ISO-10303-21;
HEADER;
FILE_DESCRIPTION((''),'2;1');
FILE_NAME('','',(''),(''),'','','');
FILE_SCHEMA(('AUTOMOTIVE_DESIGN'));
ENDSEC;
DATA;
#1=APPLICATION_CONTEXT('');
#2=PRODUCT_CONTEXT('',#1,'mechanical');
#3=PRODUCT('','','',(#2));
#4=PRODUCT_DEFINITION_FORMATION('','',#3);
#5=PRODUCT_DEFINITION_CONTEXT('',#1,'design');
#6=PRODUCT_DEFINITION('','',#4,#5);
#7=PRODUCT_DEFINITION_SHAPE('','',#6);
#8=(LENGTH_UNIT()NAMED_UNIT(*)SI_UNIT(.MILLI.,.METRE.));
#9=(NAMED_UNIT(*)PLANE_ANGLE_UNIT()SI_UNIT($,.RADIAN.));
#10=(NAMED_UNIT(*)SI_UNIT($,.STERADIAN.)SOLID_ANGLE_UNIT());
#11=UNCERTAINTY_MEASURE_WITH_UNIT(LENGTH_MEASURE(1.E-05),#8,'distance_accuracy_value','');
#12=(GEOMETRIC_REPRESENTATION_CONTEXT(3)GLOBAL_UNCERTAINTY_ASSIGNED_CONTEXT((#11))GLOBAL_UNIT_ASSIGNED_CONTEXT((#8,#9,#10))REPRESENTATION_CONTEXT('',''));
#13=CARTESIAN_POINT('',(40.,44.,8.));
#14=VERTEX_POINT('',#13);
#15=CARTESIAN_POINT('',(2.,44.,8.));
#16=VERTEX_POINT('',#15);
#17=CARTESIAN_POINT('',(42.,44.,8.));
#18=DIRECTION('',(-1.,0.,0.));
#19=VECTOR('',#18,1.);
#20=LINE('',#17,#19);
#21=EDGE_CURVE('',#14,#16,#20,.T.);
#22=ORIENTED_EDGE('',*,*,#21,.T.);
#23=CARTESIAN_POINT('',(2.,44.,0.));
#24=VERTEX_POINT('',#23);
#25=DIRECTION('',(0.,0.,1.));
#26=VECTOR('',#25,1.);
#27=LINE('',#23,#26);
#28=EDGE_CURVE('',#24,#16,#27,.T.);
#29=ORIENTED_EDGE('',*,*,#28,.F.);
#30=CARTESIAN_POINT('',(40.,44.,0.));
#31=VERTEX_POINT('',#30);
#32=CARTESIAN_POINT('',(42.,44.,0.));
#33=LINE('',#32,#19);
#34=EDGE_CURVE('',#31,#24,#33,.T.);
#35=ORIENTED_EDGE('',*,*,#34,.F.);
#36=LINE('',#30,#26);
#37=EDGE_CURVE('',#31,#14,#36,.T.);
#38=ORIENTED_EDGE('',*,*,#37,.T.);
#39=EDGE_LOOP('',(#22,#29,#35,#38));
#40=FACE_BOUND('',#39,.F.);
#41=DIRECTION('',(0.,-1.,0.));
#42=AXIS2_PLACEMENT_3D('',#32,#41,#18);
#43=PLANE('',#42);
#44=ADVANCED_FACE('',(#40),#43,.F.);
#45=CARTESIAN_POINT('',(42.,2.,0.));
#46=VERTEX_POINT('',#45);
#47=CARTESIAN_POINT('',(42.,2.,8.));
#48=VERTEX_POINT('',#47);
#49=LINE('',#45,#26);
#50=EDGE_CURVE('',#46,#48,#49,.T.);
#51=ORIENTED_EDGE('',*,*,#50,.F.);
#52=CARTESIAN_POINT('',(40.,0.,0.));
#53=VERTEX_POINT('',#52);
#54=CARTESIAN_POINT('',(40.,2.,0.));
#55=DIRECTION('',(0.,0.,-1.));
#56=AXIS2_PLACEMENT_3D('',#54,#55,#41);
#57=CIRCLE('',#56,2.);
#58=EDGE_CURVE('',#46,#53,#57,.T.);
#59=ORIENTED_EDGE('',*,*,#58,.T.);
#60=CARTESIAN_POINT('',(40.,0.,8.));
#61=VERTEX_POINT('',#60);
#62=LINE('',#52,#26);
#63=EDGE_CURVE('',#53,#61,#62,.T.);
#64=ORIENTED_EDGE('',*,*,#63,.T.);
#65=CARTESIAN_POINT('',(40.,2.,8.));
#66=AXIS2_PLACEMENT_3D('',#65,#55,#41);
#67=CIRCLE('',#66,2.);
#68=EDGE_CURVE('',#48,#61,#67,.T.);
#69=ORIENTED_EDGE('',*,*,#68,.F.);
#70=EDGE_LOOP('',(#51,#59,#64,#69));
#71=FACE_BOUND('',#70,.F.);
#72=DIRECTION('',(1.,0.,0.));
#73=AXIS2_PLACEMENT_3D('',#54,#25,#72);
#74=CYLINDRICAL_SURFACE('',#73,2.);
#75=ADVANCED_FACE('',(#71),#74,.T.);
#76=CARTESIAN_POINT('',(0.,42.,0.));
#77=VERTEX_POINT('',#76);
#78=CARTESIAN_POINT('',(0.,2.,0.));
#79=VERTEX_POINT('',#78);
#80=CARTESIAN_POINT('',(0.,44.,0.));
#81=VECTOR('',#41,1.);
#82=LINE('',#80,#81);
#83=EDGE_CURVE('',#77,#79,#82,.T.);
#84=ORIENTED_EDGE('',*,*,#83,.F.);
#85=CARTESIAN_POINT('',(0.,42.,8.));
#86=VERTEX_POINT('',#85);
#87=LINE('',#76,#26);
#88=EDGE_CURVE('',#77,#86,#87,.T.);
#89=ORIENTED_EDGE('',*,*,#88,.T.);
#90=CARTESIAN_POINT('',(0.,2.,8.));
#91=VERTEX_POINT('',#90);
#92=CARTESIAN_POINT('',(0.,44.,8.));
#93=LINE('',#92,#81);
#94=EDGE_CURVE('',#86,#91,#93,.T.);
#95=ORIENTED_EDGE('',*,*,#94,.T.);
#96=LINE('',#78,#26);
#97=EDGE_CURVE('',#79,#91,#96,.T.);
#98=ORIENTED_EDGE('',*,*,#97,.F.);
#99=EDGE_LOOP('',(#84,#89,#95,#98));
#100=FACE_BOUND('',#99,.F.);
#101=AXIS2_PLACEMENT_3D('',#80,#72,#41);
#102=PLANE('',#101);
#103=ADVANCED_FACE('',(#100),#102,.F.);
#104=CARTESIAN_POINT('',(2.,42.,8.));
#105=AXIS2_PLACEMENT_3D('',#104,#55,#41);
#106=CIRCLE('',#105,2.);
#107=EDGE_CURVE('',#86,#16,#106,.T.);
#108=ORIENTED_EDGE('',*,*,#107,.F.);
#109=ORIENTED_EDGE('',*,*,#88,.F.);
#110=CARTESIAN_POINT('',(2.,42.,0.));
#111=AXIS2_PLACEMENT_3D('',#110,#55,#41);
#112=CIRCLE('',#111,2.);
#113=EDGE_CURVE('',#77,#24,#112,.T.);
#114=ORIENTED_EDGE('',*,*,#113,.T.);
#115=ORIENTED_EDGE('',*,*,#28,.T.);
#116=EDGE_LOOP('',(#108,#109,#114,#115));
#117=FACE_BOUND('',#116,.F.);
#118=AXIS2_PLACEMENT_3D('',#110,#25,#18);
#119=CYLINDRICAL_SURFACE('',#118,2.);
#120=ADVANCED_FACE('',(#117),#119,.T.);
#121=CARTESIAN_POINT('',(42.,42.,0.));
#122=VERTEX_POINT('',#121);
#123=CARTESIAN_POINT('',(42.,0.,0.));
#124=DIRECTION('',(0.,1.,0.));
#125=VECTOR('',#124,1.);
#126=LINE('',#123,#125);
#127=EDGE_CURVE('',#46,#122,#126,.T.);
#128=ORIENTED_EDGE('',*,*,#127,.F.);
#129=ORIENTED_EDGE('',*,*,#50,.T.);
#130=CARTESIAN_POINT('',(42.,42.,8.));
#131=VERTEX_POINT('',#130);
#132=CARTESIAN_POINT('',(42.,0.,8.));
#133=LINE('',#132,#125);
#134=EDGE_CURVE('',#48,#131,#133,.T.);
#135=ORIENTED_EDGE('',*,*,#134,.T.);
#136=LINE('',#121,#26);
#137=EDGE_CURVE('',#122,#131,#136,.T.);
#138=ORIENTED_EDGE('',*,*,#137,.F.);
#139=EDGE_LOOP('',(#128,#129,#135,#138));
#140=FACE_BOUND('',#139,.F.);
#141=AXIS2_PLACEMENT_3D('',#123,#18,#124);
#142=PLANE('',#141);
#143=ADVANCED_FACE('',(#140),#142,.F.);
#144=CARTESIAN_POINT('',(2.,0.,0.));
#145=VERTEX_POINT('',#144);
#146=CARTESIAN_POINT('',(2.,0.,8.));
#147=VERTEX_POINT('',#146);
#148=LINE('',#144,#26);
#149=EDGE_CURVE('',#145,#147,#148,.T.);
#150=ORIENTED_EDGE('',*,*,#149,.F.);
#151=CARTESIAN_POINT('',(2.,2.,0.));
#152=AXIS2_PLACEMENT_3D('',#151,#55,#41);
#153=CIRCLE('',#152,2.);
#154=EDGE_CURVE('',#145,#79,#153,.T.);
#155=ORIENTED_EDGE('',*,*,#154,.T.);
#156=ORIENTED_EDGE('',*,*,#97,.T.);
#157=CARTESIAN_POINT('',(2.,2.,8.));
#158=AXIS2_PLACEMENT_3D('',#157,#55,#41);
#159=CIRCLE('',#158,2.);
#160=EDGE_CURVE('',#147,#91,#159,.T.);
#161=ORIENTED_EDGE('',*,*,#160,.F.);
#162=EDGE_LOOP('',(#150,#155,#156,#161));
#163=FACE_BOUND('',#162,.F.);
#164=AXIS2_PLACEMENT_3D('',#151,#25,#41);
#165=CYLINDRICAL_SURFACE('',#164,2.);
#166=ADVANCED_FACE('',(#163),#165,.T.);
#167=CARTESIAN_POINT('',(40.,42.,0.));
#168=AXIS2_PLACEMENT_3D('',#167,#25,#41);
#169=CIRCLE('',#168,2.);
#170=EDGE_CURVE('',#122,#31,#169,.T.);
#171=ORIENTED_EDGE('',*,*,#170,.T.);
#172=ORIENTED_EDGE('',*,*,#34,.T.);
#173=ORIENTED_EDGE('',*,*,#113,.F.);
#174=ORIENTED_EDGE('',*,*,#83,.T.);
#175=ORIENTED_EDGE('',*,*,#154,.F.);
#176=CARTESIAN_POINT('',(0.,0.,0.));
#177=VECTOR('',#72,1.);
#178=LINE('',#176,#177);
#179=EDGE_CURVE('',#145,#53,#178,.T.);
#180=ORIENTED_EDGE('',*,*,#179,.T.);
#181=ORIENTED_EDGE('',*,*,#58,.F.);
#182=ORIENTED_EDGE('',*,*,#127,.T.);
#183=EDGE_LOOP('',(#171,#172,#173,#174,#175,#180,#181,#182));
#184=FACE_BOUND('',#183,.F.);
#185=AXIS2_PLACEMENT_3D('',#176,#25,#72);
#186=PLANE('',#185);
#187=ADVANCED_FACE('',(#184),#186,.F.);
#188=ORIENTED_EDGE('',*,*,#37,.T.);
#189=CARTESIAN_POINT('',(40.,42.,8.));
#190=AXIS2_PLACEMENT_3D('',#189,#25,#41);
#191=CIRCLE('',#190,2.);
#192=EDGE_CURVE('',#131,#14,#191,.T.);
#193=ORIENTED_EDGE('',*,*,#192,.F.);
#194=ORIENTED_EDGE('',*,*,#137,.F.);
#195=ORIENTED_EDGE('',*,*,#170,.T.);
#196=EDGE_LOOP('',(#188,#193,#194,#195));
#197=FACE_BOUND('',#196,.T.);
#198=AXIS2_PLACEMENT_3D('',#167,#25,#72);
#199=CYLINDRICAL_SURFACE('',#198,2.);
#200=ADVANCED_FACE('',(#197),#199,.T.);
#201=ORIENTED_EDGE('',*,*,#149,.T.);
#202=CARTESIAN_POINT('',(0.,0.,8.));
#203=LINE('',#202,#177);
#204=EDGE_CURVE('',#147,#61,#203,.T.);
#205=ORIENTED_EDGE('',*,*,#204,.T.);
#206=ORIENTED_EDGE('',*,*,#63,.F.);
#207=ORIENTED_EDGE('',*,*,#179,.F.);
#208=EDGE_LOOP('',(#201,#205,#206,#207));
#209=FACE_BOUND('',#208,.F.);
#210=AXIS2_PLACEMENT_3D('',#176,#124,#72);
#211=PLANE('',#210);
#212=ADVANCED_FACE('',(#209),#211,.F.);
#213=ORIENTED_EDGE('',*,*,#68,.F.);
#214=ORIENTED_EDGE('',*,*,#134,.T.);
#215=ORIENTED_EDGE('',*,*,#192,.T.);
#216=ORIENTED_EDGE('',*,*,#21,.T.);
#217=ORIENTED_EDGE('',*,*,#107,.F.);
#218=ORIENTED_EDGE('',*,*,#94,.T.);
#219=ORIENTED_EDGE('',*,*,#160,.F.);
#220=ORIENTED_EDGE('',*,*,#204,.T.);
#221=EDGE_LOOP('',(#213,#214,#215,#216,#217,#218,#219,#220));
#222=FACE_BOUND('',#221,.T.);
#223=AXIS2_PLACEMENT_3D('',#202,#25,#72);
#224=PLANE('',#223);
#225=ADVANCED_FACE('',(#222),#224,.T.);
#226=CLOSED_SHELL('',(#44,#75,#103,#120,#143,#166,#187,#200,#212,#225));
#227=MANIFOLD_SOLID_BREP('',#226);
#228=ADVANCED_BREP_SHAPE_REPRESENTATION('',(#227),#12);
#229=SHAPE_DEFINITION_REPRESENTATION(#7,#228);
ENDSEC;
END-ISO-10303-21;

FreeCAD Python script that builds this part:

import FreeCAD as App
import Part
import Sketcher


def edges_at(feature, points):
    """Names of the edges that pass closest to the given points."""
    edges = feature.Shape.Edges
    near = lambda p: min(range(len(edges)), key=lambda i: edges[i].distToShape(Part.Vertex(*p))[0])
    return sorted({f"Edge{near(p) + 1}" for p in points})

doc = App.newDocument("Part")
body = doc.addObject("PartDesign::Body", "Body")

# Sketch on XY plane
sketch1 = body.newObject("Sketcher::SketchObject", "Sketch")
sketch1.AttachmentSupport = (doc.getObject("XY_Plane"), [""])
sketch1.MapMode = "FlatFace"
sketch1.addGeometry([
    Part.LineSegment(App.Vector(0, 44, 0), App.Vector(0, 0, 0)),
    Part.LineSegment(App.Vector(0, 0, 0), App.Vector(42, 0, 0)),
    Part.LineSegment(App.Vector(42, 0, 0), App.Vector(42, 44, 0)),
    Part.LineSegment(App.Vector(42, 44, 0), App.Vector(0, 44, 0)),
], False)
sketch1.addConstraint([
    Sketcher.Constraint("Coincident", 0, 2, 1, 1),
    Sketcher.Constraint("Coincident", 1, 2, 2, 1),
    Sketcher.Constraint("Coincident", 2, 2, 3, 1),
    Sketcher.Constraint("Coincident", 3, 2, 0, 1),
    Sketcher.Constraint("Vertical", 0),
    Sketcher.Constraint("Horizontal", 1),
    Sketcher.Constraint("Vertical", 2),
    Sketcher.Constraint("Horizontal", 3),
    Sketcher.Constraint("Coincident", 0, 2, -1, 1),
    Sketcher.Constraint("DistanceX", 1, 1, 1, 2, 42.0),
    Sketcher.Constraint("DistanceY", 0, 2, 0, 1, 44.0),
])
pad1 = body.newObject("PartDesign::Pad", "Pad")
pad1.Profile = sketch1
pad1.Length = 8
doc.recompute()

fillet = body.newObject("PartDesign::Fillet", "Fillet")
fillet.Base = (pad1, edges_at(pad1, [(42, 0, 4)]))
fillet.Radius = 2
doc.recompute()

fillet2 = body.newObject("PartDesign::Fillet", "Fillet001")
fillet2.Base = (fillet, edges_at(fillet, [(42, 44, 4)]))
fillet2.Radius = 2
doc.recompute()

fillet3 = body.newObject("PartDesign::Fillet", "Fillet002")
fillet3.Base = (fillet2, edges_at(fillet2, [(0, 0, 4)]))
fillet3.Radius = 2
doc.recompute()

fillet4 = body.newObject("PartDesign::Fillet", "Fillet003")
fillet4.Base = (fillet3, edges_at(fillet3, [(0, 44, 4)]))
fillet4.Radius = 2

doc.recompute()
